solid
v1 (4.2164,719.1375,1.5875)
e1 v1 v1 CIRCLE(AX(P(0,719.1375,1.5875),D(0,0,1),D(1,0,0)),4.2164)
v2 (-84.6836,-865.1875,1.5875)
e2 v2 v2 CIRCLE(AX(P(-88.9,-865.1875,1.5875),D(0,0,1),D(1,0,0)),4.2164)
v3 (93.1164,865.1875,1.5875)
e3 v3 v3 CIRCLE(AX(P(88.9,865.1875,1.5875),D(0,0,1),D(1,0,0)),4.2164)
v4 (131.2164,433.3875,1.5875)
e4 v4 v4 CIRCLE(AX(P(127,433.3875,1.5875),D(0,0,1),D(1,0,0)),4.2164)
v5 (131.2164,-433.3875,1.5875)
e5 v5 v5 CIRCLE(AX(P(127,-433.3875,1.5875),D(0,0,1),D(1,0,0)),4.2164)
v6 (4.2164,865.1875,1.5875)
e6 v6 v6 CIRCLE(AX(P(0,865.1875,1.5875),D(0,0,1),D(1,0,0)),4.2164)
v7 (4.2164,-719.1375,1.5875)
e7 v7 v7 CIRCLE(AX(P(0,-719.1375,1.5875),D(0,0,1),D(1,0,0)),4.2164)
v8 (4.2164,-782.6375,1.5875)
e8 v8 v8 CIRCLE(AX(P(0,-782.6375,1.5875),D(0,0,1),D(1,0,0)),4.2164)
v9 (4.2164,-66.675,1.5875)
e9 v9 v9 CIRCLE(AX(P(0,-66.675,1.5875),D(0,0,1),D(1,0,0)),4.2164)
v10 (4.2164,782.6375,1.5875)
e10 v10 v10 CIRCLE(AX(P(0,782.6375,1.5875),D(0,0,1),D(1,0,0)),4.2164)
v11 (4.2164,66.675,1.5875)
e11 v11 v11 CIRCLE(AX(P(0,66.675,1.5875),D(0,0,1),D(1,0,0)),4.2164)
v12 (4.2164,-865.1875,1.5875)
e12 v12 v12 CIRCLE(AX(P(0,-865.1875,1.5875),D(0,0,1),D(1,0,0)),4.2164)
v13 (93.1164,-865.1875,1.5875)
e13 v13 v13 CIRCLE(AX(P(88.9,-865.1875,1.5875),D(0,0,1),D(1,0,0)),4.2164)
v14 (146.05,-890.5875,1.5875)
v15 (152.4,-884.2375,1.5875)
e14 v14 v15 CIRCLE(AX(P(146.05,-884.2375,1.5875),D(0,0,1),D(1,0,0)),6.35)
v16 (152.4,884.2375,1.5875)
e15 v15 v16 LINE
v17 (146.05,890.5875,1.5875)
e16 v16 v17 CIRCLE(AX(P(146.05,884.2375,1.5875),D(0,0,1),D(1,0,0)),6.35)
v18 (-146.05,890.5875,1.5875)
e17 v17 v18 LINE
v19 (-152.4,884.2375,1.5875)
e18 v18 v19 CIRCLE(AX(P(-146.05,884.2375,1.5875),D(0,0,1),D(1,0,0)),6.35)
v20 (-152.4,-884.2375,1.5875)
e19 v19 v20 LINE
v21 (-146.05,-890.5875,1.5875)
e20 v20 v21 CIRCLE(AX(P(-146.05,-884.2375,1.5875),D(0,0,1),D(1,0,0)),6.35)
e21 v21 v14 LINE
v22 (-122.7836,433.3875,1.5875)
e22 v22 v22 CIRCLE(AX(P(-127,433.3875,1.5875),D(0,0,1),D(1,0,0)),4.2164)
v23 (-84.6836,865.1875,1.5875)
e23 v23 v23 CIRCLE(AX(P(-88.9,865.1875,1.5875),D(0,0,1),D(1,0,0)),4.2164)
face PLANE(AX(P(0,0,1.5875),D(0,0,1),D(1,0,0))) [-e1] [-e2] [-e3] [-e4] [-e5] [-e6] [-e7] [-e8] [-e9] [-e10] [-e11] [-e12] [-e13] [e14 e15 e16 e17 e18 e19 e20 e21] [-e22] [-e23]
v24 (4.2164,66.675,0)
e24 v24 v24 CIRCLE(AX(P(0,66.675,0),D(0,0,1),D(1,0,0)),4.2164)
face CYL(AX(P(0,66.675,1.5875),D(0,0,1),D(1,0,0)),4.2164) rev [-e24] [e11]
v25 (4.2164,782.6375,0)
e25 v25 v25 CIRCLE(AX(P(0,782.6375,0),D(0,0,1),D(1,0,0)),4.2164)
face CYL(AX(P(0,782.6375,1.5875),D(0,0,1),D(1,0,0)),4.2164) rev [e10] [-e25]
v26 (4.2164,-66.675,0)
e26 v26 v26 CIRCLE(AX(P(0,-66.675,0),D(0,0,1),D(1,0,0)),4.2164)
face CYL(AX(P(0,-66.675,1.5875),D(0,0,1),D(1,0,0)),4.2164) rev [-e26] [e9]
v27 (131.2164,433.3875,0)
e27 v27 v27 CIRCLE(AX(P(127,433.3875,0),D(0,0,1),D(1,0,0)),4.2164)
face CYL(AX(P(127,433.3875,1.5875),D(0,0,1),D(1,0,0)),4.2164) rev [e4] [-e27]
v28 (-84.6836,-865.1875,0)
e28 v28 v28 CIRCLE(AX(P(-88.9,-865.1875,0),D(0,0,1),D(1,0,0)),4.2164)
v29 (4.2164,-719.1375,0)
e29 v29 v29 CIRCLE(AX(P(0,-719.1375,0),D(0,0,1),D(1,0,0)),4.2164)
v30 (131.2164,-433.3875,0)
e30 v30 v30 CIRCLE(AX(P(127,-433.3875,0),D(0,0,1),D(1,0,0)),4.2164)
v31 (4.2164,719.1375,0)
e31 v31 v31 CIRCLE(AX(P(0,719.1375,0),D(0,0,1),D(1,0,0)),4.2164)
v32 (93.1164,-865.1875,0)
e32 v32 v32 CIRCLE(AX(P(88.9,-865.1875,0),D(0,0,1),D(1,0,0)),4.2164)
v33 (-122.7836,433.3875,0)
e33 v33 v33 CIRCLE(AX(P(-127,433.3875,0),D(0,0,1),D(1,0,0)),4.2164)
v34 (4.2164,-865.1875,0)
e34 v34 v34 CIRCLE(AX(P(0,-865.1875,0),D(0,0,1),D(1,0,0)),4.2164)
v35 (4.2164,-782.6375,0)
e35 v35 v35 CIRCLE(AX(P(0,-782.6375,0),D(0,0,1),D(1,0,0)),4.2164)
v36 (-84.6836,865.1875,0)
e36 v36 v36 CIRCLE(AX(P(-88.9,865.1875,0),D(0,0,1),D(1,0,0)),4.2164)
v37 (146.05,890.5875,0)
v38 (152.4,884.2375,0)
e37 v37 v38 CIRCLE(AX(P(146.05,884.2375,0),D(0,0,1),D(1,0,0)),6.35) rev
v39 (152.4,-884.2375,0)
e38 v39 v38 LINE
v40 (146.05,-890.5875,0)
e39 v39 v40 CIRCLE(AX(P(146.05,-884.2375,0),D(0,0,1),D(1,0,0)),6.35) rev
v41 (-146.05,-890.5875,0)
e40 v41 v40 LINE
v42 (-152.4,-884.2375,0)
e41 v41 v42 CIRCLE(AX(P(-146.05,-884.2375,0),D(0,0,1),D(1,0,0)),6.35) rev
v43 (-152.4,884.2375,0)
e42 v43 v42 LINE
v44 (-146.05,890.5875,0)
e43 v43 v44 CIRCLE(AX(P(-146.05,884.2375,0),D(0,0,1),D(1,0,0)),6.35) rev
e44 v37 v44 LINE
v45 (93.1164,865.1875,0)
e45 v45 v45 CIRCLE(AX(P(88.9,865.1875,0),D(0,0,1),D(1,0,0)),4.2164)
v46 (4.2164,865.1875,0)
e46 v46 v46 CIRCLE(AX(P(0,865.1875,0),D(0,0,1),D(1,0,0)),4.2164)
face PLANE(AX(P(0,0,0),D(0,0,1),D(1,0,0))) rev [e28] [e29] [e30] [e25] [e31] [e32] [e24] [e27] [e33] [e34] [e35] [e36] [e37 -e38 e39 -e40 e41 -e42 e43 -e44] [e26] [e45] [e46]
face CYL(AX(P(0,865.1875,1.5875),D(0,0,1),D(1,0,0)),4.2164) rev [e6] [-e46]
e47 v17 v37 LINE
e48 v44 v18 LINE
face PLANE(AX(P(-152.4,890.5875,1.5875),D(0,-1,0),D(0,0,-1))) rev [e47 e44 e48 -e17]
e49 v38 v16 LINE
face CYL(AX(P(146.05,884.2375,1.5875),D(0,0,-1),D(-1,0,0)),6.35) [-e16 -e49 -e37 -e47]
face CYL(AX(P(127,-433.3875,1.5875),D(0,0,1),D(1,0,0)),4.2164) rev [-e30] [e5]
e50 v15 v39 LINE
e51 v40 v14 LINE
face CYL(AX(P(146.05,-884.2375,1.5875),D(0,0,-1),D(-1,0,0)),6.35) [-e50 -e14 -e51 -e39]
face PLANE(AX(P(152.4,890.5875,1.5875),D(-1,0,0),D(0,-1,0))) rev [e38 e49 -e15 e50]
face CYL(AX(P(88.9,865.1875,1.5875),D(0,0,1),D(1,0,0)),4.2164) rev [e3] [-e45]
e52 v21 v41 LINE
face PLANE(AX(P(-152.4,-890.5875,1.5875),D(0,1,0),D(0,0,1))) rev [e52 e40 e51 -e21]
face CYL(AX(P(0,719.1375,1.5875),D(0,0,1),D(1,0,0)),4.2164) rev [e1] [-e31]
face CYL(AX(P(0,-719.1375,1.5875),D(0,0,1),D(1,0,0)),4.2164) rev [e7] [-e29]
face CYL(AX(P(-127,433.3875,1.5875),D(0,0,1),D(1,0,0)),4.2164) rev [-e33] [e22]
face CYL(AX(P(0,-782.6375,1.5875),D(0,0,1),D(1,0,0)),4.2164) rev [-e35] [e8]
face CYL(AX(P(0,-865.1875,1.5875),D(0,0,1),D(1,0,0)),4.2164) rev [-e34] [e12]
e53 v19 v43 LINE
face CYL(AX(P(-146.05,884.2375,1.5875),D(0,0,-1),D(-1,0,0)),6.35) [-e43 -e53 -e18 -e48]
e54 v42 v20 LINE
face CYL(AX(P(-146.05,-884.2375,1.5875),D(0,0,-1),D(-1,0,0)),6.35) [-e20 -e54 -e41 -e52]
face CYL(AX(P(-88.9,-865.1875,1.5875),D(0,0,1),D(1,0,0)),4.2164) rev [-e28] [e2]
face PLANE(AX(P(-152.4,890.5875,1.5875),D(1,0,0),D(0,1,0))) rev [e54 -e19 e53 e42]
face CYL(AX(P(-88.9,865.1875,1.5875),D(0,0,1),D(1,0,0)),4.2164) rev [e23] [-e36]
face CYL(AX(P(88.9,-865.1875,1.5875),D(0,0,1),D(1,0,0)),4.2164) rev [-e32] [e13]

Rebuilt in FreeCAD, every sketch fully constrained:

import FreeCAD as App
import Part
import Sketcher

V = App.Vector
Q = App.Units.Quantity


def edges_at(feature, points):
    """Names of the edges that pass closest to the given points."""
    edges = feature.Shape.Edges
    near = lambda p: min(range(len(edges)), key=lambda i: edges[i].distToShape(Part.Vertex(*p))[0])
    return sorted({f"Edge{near(p) + 1}" for p in points})


def add_polygon(sketch, points):
    """Adds a closed chain of lines whose ends are joined by coincident constraints."""
    first, n = sketch.GeometryCount, len(points)
    for a, b in zip(points, points[1:] + points[:1]):
        sketch.addGeometry(Part.LineSegment(App.Vector(*a, 0), App.Vector(*b, 0)), False)
    for i in range(n):
        sketch.addConstraint(Sketcher.Constraint("Coincident", first + i, 2, first + (i + 1) % n, 1))

doc = App.newDocument("Part")
body = doc.addObject("PartDesign::Body", "Body")

# Sketch on XY plane
sketch1 = doc.addObject("Sketcher::SketchObject", "Sketch")
body.addObject(sketch1)
sketch1.AttachmentSupport = (doc.XY_Plane, [""])
sketch1.MapMode = "FlatFace"
add_polygon(sketch1, [(-152, 891), (-152, -891), (152, -891), (152, 891)])  # lines 0-3
sketch1.addConstraint([
    Sketcher.Constraint("Vertical", 0),
    Sketcher.Constraint("Horizontal", 1),
    Sketcher.Constraint("Vertical", 2),
    Sketcher.Constraint("Horizontal", 3),
    Sketcher.Constraint("Symmetric", 0, 2, 2, 2, -1, 1),
    Sketcher.Constraint("DistanceX", 1, 1, 1, 2, Q("12 in")),
    Sketcher.Constraint("DistanceY", 0, 2, 0, 1, Q("70.125 in")),
])
pad1 = doc.addObject("PartDesign::Pad", "Pad")
body.addObject(pad1)
pad1.Profile = sketch1
pad1.Length = Q("0.0625 in")

# Sketch on XY plane
sketch2 = doc.addObject("Sketcher::SketchObject", "Sketch001")
body.addObject(sketch2)
sketch2.AttachmentSupport = (doc.XY_Plane, [""])
sketch2.MapMode = "FlatFace"
sketch2.AttachmentOffset = App.Placement(V(0, 0, 0.0625 * 25.4), App.Rotation())
sketch2.addGeometry([
    Part.Circle(V(0, 865.2, 0), V(0, 0, 1), 4.2),  # 0
    Part.Circle(V(-127, 433.4, 0), V(0, 0, 1), 4.2),  # 1
    Part.Circle(V(127, 433.4, 0), V(0, 0, 1), 4.2),  # 2
    Part.Circle(V(0, 66.7, 0), V(0, 0, 1), 4.2),  # 3
    Part.Circle(V(0, -66.7, 0), V(0, 0, 1), 4.2),  # 4
    Part.Circle(V(127, -433.4, 0), V(0, 0, 1), 4.2),  # 5
    Part.Circle(V(0, -865.2, 0), V(0, 0, 1), 4.2),  # 6
    Part.Circle(V(0, 782.6, 0), V(0, 0, 1), 4.2),  # 7
    Part.Circle(V(0, 719.1, 0), V(0, 0, 1), 4.2),  # 8
    Part.Circle(V(0, -782.6, 0), V(0, 0, 1), 4.2),  # 9
    Part.Circle(V(0, -719.1, 0), V(0, 0, 1), 4.2),  # 10
    Part.Circle(V(-88.9, 865.2, 0), V(0, 0, 1), 4.2),  # 11
    Part.Circle(V(88.9, 865.2, 0), V(0, 0, 1), 4.2),  # 12
    Part.Circle(V(-88.9, -865.2, 0), V(0, 0, 1), 4.2),  # 13
    Part.Circle(V(88.9, -865.2, 0), V(0, 0, 1), 4.2),  # 14
], False)
sketch2.addConstraint([
    Sketcher.Constraint("Equal", 0, 1),
    Sketcher.Constraint("Equal", 1, 2),
    Sketcher.Constraint("Equal", 2, 3),
    Sketcher.Constraint("Equal", 3, 4),
    Sketcher.Constraint("Equal", 4, 5),
    Sketcher.Constraint("Equal", 5, 6),
    Sketcher.Constraint("Equal", 6, 7),
    Sketcher.Constraint("Equal", 7, 8),
    Sketcher.Constraint("Equal", 8, 9),
    Sketcher.Constraint("Equal", 9, 10),
    Sketcher.Constraint("Equal", 10, 11),
    Sketcher.Constraint("Equal", 11, 12),
    Sketcher.Constraint("Equal", 12, 13),
    Sketcher.Constraint("Equal", 13, 14),
    Sketcher.Constraint("Symmetric", 3, 3, 4, 3, -1, 1),
    Sketcher.Constraint("Symmetric", 1, 3, 5, 3, -1, 1),
    Sketcher.Constraint("Symmetric", 0, 3, 6, 3, -1, 1),
    Sketcher.Constraint("Symmetric", 7, 3, 9, 3, -1, 1),
    Sketcher.Constraint("Symmetric", 8, 3, 10, 3, -1, 1),
    Sketcher.Constraint("Symmetric", 12, 3, 13, 3, -1, 1),
    Sketcher.Constraint("Symmetric", 11, 3, 14, 3, -1, 1),
    Sketcher.Constraint("Symmetric", 1, 3, 2, 3, -2),
    Sketcher.Constraint("Symmetric", 11, 3, 12, 3, -2),
    Sketcher.Constraint("PointOnObject", 0, 3, -2),
    Sketcher.Constraint("PointOnObject", 3, 3, -2),
    Sketcher.Constraint("PointOnObject", 7, 3, -2),
    Sketcher.Constraint("PointOnObject", 8, 3, -2),
    Sketcher.Constraint("Horizontal", 0, 3, 11, 3),
    Sketcher.Constraint("Diameter", 0, Q("0.332 in")),
    Sketcher.Constraint("DistanceX", 1, 3, -1, 1, Q("5 in")),
    Sketcher.Constraint("DistanceY", 1, 3, 0, 3, Q("17 in")),
    Sketcher.Constraint("DistanceX", 11, 3, 12, 3, Q("7 in")),
    Sketcher.Constraint("DistanceY", 8, 3, 7, 3, Q("2.5 in")),
    Sketcher.Constraint("DistanceY", 4, 3, 3, 3, Q("5.25 in")),
    Sketcher.Constraint("DistanceY", 7, 3, 0, 3, Q("3.25 in")),
    Sketcher.Constraint("DistanceY", -1, 1, 0, 3, Q("34.0625 in")),
])
doc.recompute()
hole = doc.addObject("PartDesign::Hole", "Hole")
body.addObject(hole)
hole.Profile = sketch2
hole.ThreadType = "None"
hole.Diameter = Q("0.332 in")
hole.DepthType = "Dimension"
hole.Depth = Q("0.0625 in")
hole.DrillPoint = "Flat"
doc.recompute()

fillet = doc.addObject("PartDesign::Fillet", "Fillet")
body.addObject(fillet)
fillet.Base = (hole, edges_at(hole, [
    (152.4, -890.587, 0.794),
    (-152.4, -890.587, 0.794),
    (-152.4, 890.587, 0.794),
    (152.4, 890.587, 0.794),
]))
fillet.Radius = Q("0.25 in")

doc.recompute()
